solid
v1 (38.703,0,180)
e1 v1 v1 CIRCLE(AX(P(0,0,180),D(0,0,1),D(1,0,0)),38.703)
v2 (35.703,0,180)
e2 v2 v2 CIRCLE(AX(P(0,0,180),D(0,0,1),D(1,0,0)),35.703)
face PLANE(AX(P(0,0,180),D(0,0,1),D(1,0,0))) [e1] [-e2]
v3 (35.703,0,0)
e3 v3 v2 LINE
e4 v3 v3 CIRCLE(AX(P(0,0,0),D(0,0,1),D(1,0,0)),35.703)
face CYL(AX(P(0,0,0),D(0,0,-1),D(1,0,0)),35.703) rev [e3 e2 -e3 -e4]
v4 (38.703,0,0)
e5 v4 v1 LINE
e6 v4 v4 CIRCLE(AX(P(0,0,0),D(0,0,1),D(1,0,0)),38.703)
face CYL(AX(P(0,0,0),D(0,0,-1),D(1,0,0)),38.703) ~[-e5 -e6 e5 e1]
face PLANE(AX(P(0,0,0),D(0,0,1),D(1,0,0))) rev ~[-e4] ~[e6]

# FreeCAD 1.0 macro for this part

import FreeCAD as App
import Part
import Sketcher

doc = App.newDocument("Part")
body = doc.addObject("PartDesign::Body", "Body")

# Sketch on XY plane
sketch1 = doc.addObject("Sketcher::SketchObject", "Sketch")
body.addObject(sketch1)
sketch1.AttachmentSupport = (doc.XY_Plane, [""])
sketch1.MapMode = "FlatFace"
sketch1.addGeometry(Part.Circle(App.Vector(0, 0, 0), App.Vector(0, 0, 1), 38.703), False)
sketch1.addGeometry(Part.Circle(App.Vector(0, 0, 0), App.Vector(0, 0, 1), 35.703), False)
sketch1.addConstraint(Sketcher.Constraint("Coincident", 0, 3, -1, 1))
sketch1.addConstraint(Sketcher.Constraint("Coincident", 1, 3, -1, 1))
sketch1.addConstraint(Sketcher.Constraint("Diameter", 0, 77.406))
sketch1.addConstraint(Sketcher.Constraint("Diameter", 1, 71.406))
pad1 = doc.addObject("PartDesign::Pad", "Pad")
body.addObject(pad1)
pad1.Profile = sketch1
pad1.Length = 180

doc.recompute()
